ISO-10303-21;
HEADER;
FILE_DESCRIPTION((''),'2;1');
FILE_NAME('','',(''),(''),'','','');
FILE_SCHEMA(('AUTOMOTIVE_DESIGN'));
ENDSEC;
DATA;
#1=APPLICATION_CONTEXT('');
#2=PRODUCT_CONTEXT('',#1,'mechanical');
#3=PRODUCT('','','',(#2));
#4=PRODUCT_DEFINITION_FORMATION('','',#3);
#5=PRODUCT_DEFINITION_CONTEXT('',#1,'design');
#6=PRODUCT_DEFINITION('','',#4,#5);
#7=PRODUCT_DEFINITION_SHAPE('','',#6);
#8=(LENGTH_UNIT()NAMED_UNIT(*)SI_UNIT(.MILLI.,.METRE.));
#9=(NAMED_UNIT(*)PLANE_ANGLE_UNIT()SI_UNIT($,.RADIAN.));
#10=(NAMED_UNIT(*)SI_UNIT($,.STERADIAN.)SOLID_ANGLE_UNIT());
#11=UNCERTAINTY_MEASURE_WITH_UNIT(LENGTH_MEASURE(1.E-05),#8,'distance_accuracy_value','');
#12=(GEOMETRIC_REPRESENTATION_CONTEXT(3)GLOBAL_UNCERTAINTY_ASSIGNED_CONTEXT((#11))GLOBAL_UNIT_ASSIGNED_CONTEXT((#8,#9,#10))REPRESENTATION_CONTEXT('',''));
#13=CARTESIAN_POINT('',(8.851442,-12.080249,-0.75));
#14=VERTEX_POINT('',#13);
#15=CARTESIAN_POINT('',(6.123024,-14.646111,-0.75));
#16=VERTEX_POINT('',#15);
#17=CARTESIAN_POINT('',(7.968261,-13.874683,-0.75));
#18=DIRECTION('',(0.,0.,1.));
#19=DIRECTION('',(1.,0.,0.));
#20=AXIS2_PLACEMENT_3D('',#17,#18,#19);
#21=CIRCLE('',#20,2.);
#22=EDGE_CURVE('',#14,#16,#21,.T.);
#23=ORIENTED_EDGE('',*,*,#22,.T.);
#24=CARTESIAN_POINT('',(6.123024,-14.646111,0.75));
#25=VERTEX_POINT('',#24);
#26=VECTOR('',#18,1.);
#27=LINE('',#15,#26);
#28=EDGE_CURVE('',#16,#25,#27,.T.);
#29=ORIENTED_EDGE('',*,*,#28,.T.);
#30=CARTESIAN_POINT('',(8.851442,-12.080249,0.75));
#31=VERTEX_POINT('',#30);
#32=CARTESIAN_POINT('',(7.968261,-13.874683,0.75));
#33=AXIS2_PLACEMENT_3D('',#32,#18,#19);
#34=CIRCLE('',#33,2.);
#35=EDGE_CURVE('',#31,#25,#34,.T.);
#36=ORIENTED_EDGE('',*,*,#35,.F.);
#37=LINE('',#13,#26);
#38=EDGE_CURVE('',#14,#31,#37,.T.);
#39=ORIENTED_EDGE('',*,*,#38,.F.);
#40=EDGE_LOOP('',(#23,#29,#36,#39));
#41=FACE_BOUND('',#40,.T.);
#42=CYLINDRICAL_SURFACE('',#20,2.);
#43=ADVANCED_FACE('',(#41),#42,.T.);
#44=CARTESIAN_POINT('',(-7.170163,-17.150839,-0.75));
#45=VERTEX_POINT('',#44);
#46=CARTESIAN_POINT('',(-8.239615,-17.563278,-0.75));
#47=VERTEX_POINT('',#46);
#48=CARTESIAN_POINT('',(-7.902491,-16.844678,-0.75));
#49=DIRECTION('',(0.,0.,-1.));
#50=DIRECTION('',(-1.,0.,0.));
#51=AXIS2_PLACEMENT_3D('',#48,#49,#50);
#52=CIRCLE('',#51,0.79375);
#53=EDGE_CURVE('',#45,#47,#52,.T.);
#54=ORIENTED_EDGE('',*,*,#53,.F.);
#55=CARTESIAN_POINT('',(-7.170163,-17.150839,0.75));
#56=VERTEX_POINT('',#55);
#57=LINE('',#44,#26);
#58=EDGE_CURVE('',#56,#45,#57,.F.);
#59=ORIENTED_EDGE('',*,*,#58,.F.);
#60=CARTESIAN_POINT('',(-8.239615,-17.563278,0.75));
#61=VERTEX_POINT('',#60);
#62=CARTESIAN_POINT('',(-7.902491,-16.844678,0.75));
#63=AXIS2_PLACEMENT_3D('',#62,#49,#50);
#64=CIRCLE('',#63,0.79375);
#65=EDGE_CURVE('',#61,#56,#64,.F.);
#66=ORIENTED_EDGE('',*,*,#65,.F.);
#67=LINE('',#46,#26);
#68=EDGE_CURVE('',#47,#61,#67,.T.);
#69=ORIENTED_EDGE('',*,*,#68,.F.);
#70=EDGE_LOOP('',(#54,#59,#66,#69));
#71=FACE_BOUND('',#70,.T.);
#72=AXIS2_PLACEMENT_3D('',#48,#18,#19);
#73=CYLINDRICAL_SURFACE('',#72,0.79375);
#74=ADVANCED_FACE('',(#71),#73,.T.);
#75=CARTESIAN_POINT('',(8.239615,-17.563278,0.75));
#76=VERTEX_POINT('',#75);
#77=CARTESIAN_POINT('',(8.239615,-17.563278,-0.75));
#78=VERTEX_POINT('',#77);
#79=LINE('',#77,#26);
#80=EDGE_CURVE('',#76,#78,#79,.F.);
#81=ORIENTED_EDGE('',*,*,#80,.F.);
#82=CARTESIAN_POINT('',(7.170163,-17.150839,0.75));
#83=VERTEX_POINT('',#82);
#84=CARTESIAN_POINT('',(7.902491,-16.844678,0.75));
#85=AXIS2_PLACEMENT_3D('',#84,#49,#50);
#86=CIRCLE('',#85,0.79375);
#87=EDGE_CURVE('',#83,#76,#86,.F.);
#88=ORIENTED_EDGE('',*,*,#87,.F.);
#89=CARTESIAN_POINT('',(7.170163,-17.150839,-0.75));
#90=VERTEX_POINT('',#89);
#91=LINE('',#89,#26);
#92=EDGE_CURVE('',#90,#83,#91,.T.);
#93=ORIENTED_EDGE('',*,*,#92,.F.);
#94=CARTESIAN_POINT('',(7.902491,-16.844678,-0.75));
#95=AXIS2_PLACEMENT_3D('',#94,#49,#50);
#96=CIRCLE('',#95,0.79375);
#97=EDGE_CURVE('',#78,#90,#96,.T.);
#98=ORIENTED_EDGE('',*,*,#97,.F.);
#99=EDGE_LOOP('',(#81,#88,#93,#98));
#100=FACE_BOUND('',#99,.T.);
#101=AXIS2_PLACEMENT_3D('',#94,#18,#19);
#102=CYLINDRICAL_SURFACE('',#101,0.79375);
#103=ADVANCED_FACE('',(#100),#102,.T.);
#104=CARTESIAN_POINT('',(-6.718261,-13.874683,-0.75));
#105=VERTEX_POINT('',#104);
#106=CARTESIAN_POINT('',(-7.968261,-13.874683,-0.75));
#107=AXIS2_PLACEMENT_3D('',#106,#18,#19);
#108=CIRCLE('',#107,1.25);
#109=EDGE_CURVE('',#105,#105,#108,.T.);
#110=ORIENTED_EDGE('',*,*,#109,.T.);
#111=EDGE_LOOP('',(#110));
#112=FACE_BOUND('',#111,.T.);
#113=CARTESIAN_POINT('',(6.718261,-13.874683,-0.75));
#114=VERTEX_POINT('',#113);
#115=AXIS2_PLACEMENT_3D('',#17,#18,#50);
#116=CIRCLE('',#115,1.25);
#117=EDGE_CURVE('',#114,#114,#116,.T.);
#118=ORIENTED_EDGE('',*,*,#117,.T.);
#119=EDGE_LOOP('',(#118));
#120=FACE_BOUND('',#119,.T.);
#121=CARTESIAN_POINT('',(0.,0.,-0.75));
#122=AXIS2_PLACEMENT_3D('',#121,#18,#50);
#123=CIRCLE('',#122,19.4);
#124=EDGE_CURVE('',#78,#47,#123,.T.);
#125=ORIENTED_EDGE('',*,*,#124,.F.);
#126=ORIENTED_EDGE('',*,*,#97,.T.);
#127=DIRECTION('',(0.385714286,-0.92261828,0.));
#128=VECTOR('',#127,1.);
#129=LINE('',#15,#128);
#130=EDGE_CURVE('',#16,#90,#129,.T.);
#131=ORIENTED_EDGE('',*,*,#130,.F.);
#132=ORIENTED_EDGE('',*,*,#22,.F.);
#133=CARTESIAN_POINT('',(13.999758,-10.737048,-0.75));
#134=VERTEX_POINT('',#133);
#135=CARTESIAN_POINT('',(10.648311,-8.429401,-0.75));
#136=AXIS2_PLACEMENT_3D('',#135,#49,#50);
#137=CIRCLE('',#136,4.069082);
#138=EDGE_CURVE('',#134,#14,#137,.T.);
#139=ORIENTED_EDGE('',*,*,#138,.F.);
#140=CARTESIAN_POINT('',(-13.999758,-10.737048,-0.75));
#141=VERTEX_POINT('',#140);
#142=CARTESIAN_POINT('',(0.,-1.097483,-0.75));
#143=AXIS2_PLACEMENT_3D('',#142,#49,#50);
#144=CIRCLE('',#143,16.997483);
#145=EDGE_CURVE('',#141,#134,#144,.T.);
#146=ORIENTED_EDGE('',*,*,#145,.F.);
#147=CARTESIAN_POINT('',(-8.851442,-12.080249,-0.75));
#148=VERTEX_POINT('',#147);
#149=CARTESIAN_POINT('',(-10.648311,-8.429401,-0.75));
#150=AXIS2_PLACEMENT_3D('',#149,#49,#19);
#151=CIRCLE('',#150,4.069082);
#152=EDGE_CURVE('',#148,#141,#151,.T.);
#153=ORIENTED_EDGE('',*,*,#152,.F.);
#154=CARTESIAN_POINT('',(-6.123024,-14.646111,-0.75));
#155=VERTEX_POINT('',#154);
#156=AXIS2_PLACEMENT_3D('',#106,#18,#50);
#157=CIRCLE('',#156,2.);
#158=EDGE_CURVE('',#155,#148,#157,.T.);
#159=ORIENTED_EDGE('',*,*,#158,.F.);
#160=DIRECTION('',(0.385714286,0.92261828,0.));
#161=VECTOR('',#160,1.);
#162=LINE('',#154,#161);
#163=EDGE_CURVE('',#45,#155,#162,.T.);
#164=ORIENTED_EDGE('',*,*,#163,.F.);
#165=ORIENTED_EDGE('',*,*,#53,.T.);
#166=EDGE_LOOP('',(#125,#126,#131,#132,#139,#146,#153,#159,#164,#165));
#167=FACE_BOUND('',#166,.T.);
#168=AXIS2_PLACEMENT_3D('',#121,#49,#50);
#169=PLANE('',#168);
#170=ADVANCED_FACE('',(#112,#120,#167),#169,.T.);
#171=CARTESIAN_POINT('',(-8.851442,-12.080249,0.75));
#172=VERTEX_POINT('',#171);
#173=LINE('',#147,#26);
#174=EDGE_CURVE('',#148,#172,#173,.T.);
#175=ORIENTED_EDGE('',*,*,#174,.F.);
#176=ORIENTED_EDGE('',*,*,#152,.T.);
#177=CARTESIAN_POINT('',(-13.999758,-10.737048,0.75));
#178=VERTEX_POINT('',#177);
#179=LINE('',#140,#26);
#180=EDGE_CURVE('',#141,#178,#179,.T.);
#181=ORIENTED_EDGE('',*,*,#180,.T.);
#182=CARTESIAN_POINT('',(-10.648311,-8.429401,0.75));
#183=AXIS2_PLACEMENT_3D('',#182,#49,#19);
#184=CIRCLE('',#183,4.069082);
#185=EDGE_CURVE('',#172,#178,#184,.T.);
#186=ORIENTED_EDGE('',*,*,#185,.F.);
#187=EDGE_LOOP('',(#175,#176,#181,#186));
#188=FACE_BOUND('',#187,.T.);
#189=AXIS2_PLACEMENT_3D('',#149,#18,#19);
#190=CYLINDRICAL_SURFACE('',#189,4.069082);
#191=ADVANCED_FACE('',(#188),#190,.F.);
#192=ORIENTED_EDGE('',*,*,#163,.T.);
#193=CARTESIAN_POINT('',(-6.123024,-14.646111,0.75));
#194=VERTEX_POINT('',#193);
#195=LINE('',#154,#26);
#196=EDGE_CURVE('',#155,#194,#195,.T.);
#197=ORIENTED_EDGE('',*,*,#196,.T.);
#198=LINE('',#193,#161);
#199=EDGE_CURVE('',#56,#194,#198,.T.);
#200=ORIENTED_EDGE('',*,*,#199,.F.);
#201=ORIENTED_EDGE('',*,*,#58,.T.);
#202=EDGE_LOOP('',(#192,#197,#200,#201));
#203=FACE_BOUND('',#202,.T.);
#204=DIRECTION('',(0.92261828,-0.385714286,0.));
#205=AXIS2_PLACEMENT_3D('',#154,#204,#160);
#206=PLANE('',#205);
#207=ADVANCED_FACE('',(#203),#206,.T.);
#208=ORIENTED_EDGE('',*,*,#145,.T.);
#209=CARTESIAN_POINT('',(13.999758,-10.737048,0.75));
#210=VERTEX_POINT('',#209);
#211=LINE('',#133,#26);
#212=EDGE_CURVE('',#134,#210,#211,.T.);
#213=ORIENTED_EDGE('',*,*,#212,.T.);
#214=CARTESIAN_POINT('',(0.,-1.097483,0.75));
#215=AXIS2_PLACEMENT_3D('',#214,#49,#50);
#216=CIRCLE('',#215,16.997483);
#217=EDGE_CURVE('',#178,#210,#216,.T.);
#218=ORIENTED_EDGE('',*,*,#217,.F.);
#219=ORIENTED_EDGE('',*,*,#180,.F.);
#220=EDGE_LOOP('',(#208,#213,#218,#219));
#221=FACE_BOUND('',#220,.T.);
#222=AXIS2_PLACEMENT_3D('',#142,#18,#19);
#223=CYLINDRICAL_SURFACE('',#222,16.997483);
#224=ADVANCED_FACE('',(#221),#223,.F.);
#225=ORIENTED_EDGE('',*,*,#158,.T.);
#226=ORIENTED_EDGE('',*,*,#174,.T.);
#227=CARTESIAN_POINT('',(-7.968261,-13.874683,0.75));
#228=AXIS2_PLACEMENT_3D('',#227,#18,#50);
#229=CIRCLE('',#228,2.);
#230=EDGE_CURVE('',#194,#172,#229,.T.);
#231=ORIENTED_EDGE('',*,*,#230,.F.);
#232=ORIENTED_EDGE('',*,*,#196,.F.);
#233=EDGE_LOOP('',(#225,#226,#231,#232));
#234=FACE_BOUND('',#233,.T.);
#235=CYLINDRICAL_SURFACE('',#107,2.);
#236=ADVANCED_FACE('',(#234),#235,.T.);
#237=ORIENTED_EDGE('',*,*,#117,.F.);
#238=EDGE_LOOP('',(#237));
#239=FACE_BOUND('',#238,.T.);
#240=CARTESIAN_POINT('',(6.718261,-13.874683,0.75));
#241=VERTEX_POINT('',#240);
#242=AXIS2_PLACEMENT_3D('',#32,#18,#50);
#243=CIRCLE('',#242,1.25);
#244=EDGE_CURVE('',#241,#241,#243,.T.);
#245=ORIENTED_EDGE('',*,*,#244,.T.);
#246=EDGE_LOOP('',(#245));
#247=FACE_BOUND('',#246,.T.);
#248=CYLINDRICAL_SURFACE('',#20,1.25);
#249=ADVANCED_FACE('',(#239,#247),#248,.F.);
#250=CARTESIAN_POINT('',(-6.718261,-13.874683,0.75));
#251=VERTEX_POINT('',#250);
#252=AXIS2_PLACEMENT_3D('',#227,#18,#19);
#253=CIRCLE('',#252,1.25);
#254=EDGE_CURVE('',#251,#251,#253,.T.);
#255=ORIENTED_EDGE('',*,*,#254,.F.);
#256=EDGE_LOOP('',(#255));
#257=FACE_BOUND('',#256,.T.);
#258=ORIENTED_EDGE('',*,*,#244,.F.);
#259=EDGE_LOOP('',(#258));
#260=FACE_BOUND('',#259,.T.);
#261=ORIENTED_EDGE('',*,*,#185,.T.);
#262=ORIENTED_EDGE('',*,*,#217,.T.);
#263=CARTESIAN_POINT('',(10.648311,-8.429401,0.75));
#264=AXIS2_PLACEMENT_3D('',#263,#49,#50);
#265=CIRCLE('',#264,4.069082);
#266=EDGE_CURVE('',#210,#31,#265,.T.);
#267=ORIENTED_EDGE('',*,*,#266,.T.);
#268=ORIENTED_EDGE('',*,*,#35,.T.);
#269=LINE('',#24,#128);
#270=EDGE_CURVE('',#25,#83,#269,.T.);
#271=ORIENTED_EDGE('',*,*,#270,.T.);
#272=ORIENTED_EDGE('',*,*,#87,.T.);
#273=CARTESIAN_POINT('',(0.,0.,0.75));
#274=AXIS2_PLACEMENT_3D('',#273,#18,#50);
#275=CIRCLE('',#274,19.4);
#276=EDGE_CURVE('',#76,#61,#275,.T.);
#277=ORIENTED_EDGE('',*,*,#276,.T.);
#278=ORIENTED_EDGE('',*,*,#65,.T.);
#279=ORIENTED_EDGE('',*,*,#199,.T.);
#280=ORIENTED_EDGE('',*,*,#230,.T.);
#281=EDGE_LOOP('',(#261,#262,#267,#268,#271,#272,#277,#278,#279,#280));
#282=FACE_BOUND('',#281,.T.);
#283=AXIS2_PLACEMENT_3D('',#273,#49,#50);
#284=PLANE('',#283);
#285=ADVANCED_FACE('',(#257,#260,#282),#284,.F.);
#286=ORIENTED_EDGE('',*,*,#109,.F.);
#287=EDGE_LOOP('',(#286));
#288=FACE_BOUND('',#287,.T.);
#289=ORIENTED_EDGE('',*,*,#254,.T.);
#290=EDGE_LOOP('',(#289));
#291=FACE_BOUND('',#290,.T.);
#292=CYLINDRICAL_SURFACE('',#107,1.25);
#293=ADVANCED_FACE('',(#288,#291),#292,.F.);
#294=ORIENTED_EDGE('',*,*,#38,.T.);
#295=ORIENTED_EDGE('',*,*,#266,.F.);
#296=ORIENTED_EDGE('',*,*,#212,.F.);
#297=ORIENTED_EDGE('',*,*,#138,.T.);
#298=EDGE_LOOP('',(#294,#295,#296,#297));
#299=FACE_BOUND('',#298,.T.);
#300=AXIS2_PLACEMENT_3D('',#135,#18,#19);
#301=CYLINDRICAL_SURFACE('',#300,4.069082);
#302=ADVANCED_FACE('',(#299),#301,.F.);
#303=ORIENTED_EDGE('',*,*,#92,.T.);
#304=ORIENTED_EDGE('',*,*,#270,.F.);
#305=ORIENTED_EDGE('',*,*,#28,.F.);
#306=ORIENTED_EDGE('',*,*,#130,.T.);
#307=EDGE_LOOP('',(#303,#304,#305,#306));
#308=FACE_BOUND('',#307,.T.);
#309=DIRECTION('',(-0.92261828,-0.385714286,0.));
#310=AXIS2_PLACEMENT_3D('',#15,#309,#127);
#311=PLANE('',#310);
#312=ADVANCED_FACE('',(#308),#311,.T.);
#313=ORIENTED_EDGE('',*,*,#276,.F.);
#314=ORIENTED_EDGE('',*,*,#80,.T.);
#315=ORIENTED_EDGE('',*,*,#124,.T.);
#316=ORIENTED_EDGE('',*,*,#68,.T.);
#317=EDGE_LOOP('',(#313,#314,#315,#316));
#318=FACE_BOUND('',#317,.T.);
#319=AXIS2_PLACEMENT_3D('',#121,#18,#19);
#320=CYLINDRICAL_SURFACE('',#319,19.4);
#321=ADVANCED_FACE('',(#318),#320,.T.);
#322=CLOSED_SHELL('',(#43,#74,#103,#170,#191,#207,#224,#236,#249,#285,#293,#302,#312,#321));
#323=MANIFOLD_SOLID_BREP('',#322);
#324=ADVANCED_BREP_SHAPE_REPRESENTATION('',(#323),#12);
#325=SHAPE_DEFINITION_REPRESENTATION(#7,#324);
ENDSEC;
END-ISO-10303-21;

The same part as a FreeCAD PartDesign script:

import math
import FreeCAD as App
import Part
import Sketcher
from FreeCAD import Vector
Q = App.Units.Quantity


def edges_at(feature, points):
    """Names of the edges that pass closest to the given points."""
    edges = feature.Shape.Edges
    near = lambda p: min(range(len(edges)), key=lambda i: edges[i].distToShape(Part.Vertex(*p))[0])
    return sorted({f"Edge{near(p) + 1}" for p in points})

doc = App.newDocument("Part")
body = doc.addObject("PartDesign::Body", "Body")

sketch1 = body.newObject("Sketcher::SketchObject", "Sketch")
sketch1.AttachmentSupport = (doc.getObject("XY_Plane"), [""])
sketch1.MapMode = "FlatFace"
sketch1.addGeometry([
    Part.LineSegment(Vector(-7.5, -17.9, 0), Vector(-6.1, -14.6, 0)),
    Part.ArcOfCircle(Part.Circle(Vector(-8, -13.9, 0), Vector(0, 0, 1), 2), math.radians(-23), math.radians(116)),
    Part.ArcOfCircle(Part.Circle(Vector(-10.6, -8.4, 0), Vector(0, 0, 1), 4.1), math.radians(-145), math.radians(-64)),
    Part.ArcOfCircle(Part.Circle(Vector(0, -1.1, 0), Vector(0, 0, 1), 17), math.radians(-35), math.radians(215)),
    Part.ArcOfCircle(Part.Circle(Vector(10.6, -8.4, 0), Vector(0, 0, 1), 4.1), math.radians(-116), math.radians(-35)),
    Part.ArcOfCircle(Part.Circle(Vector(8, -13.9, 0), Vector(0, 0, 1), 2), math.radians(64), math.radians(203)),
    Part.LineSegment(Vector(6.1, -14.6, 0), Vector(7.5, -17.9, 0)),
    Part.ArcOfCircle(Part.Circle(Vector(0, 0, 0), Vector(0, 0, 1), 19.4), math.radians(-67), math.radians(247)),
    Part.Circle(Vector(8, -13.9, 0), Vector(0, 0, 1), 1.2),
    Part.Circle(Vector(-8, -13.9, 0), Vector(0, 0, 1), 1.2),
], False)
sketch1.addConstraint([
    Sketcher.Constraint("Tangent", 0, 2, 1, 1),
    Sketcher.Constraint("Tangent", 1, 2, 2, 2),
    Sketcher.Constraint("Tangent", 2, 1, 3, 2),
    Sketcher.Constraint("Tangent", 3, 1, 4, 2),
    Sketcher.Constraint("Tangent", 4, 1, 5, 1),
    Sketcher.Constraint("Tangent", 5, 2, 6, 1),
    Sketcher.Constraint("Coincident", 6, 2, 7, 1),
    Sketcher.Constraint("Coincident", 7, 2, 0, 1),
    Sketcher.Constraint("Coincident", 7, 3, -1, 1),
    Sketcher.Constraint("Coincident", 8, 3, 5, 3),
    Sketcher.Constraint("Coincident", 9, 3, 1, 3),
    Sketcher.Constraint("Equal", 2, 4),
    Sketcher.Constraint("Equal", 1, 5),
    Sketcher.Constraint("Equal", 8, 9),
    Sketcher.Constraint("Symmetric", 2, 3, 4, 3, -2),
    Sketcher.Constraint("Symmetric", 0, 2, 5, 2, -2),
    Sketcher.Constraint("Radius", 1, Q("2 mm")),
    Sketcher.Constraint("Diameter", 8, Q("2.5 mm")),
    Sketcher.Constraint("Radius", 7, Q("19.4 mm")),
    Sketcher.Constraint("Radius", 2, Q("4.069082 mm")),
    Sketcher.Constraint("Radius", 3, Q("16.997483 mm")),
    Sketcher.Constraint("DistanceY", 2, 3, -1, 1, Q("8.429401 mm")),
    Sketcher.Constraint("DistanceY", 1, 3, 3, 3, Q("12.7772 mm")),
    Sketcher.Constraint("DistanceY", 1, 2, 2, 1, Q("1.343202 mm")),
    Sketcher.Constraint("DistanceX", 6, 2, 3, 1, Q("6.516901 mm")),
])
pad1 = body.newObject("PartDesign::Pad", "Pad")
pad1.Profile = sketch1
pad1.Type = "TwoLengths"
pad1.Length = 0.75
pad1.Length2 = 0.75
doc.recompute()

fillet = body.newObject("PartDesign::Fillet", "Fillet")
fillet.Base = (pad1, edges_at(pad1, [(7.483, -17.899, 0), (-7.483, -17.899, 0)]))
fillet.Radius = 0.79375

doc.recompute()
